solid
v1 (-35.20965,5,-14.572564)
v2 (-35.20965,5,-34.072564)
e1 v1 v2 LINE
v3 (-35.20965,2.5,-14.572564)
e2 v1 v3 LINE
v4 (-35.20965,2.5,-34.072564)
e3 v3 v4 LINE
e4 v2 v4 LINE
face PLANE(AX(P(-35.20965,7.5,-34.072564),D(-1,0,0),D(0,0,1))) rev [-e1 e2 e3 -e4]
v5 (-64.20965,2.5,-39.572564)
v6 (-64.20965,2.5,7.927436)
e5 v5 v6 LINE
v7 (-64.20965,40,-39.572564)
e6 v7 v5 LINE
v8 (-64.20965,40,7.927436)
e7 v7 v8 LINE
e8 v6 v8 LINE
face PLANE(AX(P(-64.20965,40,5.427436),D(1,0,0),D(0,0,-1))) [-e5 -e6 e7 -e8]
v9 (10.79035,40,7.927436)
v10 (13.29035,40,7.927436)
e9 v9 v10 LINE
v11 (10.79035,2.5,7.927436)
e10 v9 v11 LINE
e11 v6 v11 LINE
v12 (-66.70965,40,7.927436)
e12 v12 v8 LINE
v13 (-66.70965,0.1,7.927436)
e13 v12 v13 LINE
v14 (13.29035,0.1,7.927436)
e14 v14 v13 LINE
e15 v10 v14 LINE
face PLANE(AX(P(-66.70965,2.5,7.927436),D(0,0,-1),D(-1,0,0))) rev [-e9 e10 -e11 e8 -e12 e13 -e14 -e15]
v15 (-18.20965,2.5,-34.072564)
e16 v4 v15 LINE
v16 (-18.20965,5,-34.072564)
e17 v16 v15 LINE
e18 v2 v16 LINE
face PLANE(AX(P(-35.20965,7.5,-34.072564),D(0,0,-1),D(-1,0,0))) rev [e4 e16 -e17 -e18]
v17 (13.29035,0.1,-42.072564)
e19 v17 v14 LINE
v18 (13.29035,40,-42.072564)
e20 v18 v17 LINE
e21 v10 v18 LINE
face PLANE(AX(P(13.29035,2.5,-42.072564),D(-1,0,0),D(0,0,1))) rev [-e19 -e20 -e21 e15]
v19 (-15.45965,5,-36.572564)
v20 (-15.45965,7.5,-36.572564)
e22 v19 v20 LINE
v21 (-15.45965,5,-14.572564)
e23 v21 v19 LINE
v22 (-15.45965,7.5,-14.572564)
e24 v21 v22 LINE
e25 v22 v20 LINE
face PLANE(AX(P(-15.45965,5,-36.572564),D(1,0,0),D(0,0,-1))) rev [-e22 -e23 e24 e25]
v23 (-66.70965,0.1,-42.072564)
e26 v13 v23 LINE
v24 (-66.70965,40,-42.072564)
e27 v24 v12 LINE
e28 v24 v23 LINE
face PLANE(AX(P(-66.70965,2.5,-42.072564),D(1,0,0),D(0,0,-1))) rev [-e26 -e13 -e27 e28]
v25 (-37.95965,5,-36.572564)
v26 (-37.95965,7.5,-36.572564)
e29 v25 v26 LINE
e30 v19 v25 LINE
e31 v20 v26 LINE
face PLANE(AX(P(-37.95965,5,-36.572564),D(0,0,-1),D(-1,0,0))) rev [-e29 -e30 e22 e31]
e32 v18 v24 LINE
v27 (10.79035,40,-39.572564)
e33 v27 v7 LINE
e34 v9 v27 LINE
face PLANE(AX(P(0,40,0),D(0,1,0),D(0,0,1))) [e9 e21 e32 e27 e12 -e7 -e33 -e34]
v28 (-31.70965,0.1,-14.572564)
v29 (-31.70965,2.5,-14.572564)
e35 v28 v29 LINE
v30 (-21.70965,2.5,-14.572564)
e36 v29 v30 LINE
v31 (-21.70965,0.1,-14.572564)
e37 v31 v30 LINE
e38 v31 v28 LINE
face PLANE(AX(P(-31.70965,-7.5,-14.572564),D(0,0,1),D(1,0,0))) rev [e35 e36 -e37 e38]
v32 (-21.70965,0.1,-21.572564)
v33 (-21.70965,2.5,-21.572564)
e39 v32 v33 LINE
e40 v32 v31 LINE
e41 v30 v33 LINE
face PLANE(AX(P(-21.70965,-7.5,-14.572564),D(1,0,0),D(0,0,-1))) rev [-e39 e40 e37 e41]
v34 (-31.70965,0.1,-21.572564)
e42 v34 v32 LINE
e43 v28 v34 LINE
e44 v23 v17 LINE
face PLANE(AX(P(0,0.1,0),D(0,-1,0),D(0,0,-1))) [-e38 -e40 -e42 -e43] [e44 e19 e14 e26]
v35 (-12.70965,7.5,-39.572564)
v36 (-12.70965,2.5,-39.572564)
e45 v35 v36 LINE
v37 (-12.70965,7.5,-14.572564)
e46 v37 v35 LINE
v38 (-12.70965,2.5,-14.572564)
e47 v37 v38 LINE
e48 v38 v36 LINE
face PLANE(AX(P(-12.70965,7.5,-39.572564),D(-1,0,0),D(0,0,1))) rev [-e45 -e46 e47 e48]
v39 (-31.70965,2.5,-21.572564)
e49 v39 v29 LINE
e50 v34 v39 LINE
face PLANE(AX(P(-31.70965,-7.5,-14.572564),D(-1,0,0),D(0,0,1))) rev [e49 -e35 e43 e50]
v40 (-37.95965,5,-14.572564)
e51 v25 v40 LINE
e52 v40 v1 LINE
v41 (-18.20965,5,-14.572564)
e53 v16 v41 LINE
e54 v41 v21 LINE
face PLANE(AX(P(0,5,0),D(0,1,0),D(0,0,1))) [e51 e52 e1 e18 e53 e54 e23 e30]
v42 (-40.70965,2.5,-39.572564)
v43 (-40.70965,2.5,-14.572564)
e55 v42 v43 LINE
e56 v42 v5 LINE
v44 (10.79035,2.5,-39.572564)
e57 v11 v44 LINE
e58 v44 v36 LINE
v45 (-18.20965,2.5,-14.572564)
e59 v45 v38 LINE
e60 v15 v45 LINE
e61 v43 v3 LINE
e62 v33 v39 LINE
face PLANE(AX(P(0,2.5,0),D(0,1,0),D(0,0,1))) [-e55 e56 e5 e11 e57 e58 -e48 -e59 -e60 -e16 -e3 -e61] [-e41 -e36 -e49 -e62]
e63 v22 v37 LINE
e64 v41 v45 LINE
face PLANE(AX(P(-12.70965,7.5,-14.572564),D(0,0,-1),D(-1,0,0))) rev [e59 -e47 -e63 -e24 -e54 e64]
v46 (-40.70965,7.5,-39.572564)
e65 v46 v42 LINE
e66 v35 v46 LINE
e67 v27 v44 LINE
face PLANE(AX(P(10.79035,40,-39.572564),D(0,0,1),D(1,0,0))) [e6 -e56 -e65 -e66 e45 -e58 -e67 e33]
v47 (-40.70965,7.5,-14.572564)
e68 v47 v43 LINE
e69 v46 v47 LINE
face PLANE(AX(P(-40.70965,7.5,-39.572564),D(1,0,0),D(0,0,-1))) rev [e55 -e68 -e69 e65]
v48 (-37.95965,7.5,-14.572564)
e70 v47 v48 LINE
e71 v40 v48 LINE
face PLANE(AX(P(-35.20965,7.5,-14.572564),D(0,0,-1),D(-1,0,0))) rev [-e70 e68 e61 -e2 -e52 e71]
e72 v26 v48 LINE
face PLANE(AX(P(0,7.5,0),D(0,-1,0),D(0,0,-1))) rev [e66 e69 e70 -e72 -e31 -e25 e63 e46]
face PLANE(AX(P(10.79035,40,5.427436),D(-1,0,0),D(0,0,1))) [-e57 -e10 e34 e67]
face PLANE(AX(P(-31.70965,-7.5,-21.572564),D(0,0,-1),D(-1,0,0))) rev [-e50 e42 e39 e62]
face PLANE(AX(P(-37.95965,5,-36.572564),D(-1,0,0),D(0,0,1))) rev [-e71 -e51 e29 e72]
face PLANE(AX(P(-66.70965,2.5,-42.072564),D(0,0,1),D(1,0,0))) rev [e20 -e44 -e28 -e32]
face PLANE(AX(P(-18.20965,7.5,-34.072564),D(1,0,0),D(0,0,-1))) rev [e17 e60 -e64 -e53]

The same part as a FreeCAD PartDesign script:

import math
import FreeCAD as App
import Part
import Sketcher
Q = App.Units.Quantity


def add_polygon(sketch, points):
    """Adds a closed chain of lines whose ends are joined by coincident constraints."""
    first, n = sketch.GeometryCount, len(points)
    for a, b in zip(points, points[1:] + points[:1]):
        sketch.addGeometry(Part.LineSegment(App.Vector(*a, 0), App.Vector(*b, 0)), False)
    for i in range(n):
        sketch.addConstraint(Sketcher.Constraint("Coincident", first + i, 2, first + (i + 1) % n, 1))

doc = App.newDocument("Part")
body = doc.addObject("PartDesign::Body", "Body")

# Sketch on XZ plane
sketch1 = doc.addObject("Sketcher::SketchObject", "Sketch")
body.addObject(sketch1)
sketch1.AttachmentSupport = (doc.XZ_Plane, [""])
sketch1.MapMode = "FlatFace"
add_polygon(sketch1, [(-66.70965, -42.072564), (-66.70965, 7.927436), (13.29035, 7.927436), (13.29035, -42.072564)])  # lines 0-3
sketch1.addConstraint([
    Sketcher.Constraint("Vertical", 0),
    Sketcher.Constraint("Horizontal", 1),
    Sketcher.Constraint("Vertical", 2),
    Sketcher.Constraint("Horizontal", 3),
    Sketcher.Constraint("DistanceX", 1, 1, 1, 2, Q("80 mm")),
    Sketcher.Constraint("DistanceY", 0, 1, 0, 2, Q("50 mm")),
    Sketcher.Constraint("DistanceX", 0, 2, -1, 1, Q("66.70965 mm")),
    Sketcher.Constraint("DistanceY", -1, 1, 0, 2, Q("7.927436 mm")),
])
pad1 = doc.addObject("PartDesign::Pad", "Pad")
body.addObject(pad1)
pad1.Profile = sketch1
pad1.Length = 2.5
pad1.Reversed = True

# Sketch on XZ plane
sketch2 = doc.addObject("Sketcher::SketchObject", "Sketch001")
body.addObject(sketch2)
sketch2.AttachmentSupport = (doc.XZ_Plane, [""])
sketch2.MapMode = "FlatFace"
sketch2.AttachmentOffset = App.Placement(App.Vector(0, 0, -2.5), App.Rotation())
add_polygon(sketch2, [(-66.70965, -42.072564), (-66.70965, 7.927436), (13.29035, 7.927436), (13.29035, -42.072564)])  # lines 0-3
add_polygon(sketch2, [(10.79035, 5.427436), (-64.20965, 5.427436), (-64.20965, -39.572564), (10.79035, -39.572564)])  # lines 4-7
sketch2.addConstraint([
    Sketcher.Constraint("Vertical", 0),
    Sketcher.Constraint("Horizontal", 1),
    Sketcher.Constraint("Vertical", 2),
    Sketcher.Constraint("Horizontal", 3),
    Sketcher.Constraint("Horizontal", 4),
    Sketcher.Constraint("Vertical", 5),
    Sketcher.Constraint("Horizontal", 6),
    Sketcher.Constraint("Vertical", 7),
    Sketcher.Constraint("DistanceX", 1, 1, 1, 2, Q("80 mm")),
    Sketcher.Constraint("DistanceX", 4, 2, 4, 1, Q("75 mm")),
    Sketcher.Constraint("DistanceY", 0, 1, 0, 2, Q("50 mm")),
    Sketcher.Constraint("DistanceY", 5, 2, 5, 1, Q("45 mm")),
    Sketcher.Constraint("DistanceX", 0, 2, 4, 2, Q("2.5 mm")),
    Sketcher.Constraint("DistanceY", 4, 2, 0, 2, Q("2.5 mm")),
    Sketcher.Constraint("DistanceX", 0, 2, -1, 1, Q("66.70965 mm")),
    Sketcher.Constraint("DistanceY", -1, 1, 0, 2, Q("7.927436 mm")),
])
pad2 = doc.addObject("PartDesign::Pad", "Pad001")
body.addObject(pad2)
pad2.Profile = sketch2
pad2.Length = 37.5
pad2.Reversed = True

# Sketch on XY plane
sketch3 = doc.addObject("Sketcher::SketchObject", "Sketch002")
body.addObject(sketch3)
sketch3.AttachmentSupport = (doc.XY_Plane, [""])
sketch3.MapMode = "FlatFace"
sketch3.AttachmentOffset = App.Placement(App.Vector(0, 0, 7.927436), App.Rotation())
sketch3.addGeometry([
    Part.LineSegment(App.Vector(-33.01441, 2.5, 0), App.Vector(-20.40489, 2.5, 0)),
    Part.ArcOfCircle(Part.Circle(App.Vector(-26.70965, 15, 0), App.Vector(0, 0, 1), 14), math.radians(-63.234499), math.radians(243.234499)),
], False)
sketch3.addConstraint([
    Sketcher.Constraint("Coincident", 0, 1, 1, 2),
    Sketcher.Constraint("Coincident", 1, 1, 0, 2),
    Sketcher.Constraint("Horizontal", 0),
    Sketcher.Constraint("Radius", 1, Q("14 mm")),
    Sketcher.Constraint("DistanceY", -1, 1, 1, 3, Q("15 mm")),
    Sketcher.Constraint("DistanceY", -1, 1, 0, 1, Q("2.5 mm")),
    Sketcher.Constraint("DistanceX", 1, 3, -1, 1, Q("26.70965 mm")),
])
pocket1 = doc.addObject("PartDesign::Pocket", "Pocket")
body.addObject(pocket1)
pocket1.Profile = sketch3
pocket1.Length = 2.5

# Sketch on XZ plane
sketch4 = doc.addObject("Sketcher::SketchObject", "Sketch003")
body.addObject(sketch4)
sketch4.AttachmentSupport = (doc.XZ_Plane, [""])
sketch4.MapMode = "FlatFace"
add_polygon(sketch4, [(13.29035, -42.072564), (13.29035, 7.927436), (-66.70965, 7.927436), (-66.70965, -42.072564)])  # lines 0-3
sketch4.addConstraint([
    Sketcher.Constraint("Vertical", 0),
    Sketcher.Constraint("Horizontal", 1),
    Sketcher.Constraint("Vertical", 2),
    Sketcher.Constraint("Horizontal", 3),
    Sketcher.Constraint("DistanceX", 1, 2, 1, 1, Q("80 mm")),
    Sketcher.Constraint("DistanceY", 0, 1, 0, 2, Q("50 mm")),
    Sketcher.Constraint("DistanceX", -1, 1, 0, 2, Q("13.29035 mm")),
    Sketcher.Constraint("DistanceY", -1, 1, 0, 2, Q("7.927436 mm")),
])
pocket2 = doc.addObject("PartDesign::Pocket", "Pocket001")
body.addObject(pocket2)
pocket2.Profile = sketch4
pocket2.Length = 0.1

# Sketch on XZ plane
sketch5 = doc.addObject("Sketcher::SketchObject", "Sketch004")
body.addObject(sketch5)
sketch5.AttachmentSupport = (doc.XZ_Plane, [""])
sketch5.MapMode = "FlatFace"
sketch5.AttachmentOffset = App.Placement(App.Vector(0, 0, -2.5), App.Rotation())
add_polygon(sketch5, [(-12.70965, -39.572564), (-40.70965, -39.572564), (-40.70965, -14.572564), (-35.20965, -14.572564), (-35.20965, -34.072564), (-18.20965, -34.072564), (-18.20965, -14.572564), (-12.70965, -14.572564)])  # lines 0-7
sketch5.addConstraint([
    Sketcher.Constraint("Horizontal", 0),
    Sketcher.Constraint("Vertical", 1),
    Sketcher.Constraint("Horizontal", 2),
    Sketcher.Constraint("Vertical", 3),
    Sketcher.Constraint("Horizontal", 4),
    Sketcher.Constraint("Vertical", 5),
    Sketcher.Constraint("Horizontal", 6),
    Sketcher.Constraint("Vertical", 7),
    Sketcher.Constraint("Horizontal", 2, 2, 5, 2),
    Sketcher.Constraint("Equal", 2, 6),
    Sketcher.Constraint("DistanceX", 0, 2, 0, 1, Q("28 mm")),
    Sketcher.Constraint("DistanceX", 4, 1, 4, 2, Q("17 mm")),
    Sketcher.Constraint("DistanceY", 1, 1, 1, 2, Q("25 mm")),
    Sketcher.Constraint("DistanceY", 3, 2, 3, 1, Q("19.5 mm")),
    Sketcher.Constraint("DistanceX", 0, 2, -1, 1, Q("40.70965 mm")),
    Sketcher.Constraint("DistanceY", 0, 2, -1, 1, Q("39.572564 mm")),
])
pad3 = doc.addObject("PartDesign::Pad", "Pad002")
body.addObject(pad3)
pad3.Profile = sketch5
pad3.Length = 5
pad3.Reversed = True

# Sketch on XZ plane
sketch6 = doc.addObject("Sketcher::SketchObject", "Sketch005")
body.addObject(sketch6)
sketch6.AttachmentSupport = (doc.XZ_Plane, [""])
sketch6.MapMode = "FlatFace"
sketch6.AttachmentOffset = App.Placement(App.Vector(0, 0, -2.5), App.Rotation())
add_polygon(sketch6, [(-31.70965, -21.572564), (-31.70965, -14.572564), (-21.70965, -14.572564), (-21.70965, -21.572564)])  # lines 0-3
sketch6.addConstraint([
    Sketcher.Constraint("Vertical", 0),
    Sketcher.Constraint("Horizontal", 1),
    Sketcher.Constraint("Vertical", 2),
    Sketcher.Constraint("Horizontal", 3),
    Sketcher.Constraint("DistanceX", 1, 1, 1, 2, Q("10 mm")),
    Sketcher.Constraint("DistanceY", 0, 1, 0, 2, Q("7 mm")),
    Sketcher.Constraint("DistanceX", 0, 2, -1, 1, Q("31.70965 mm")),
    Sketcher.Constraint("DistanceY", 0, 2, -1, 1, Q("14.572564 mm")),
])
pocket3 = doc.addObject("PartDesign::Pocket", "Pocket002")
body.addObject(pocket3)
pocket3.Profile = sketch6
pocket3.Length = 10
pocket3.Reversed = True

# Sketch on XY plane
sketch7 = doc.addObject("Sketcher::SketchObject", "Sketch006")
body.addObject(sketch7)
sketch7.AttachmentSupport = (doc.XY_Plane, [""])
sketch7.MapMode = "FlatFace"
sketch7.AttachmentOffset = App.Placement(App.Vector(0, 0, 5.427436), App.Rotation())
add_polygon(sketch7, [(10.79035, 40), (10.79035, 2.5), (-64.20965, 2.5), (-64.20965, 40)])  # lines 0-3
sketch7.addConstraint([
    Sketcher.Constraint("Vertical", 0),
    Sketcher.Constraint("Horizontal", 1),
    Sketcher.Constraint("Vertical", 2),
    Sketcher.Constraint("Horizontal", 3),
    Sketcher.Constraint("DistanceX", 1, 2, 1, 1, Q("75 mm")),
    Sketcher.Constraint("DistanceY", 0, 2, 0, 1, Q("37.5 mm")),
    Sketcher.Constraint("DistanceY", -1, 1, 2, 2, Q("40 mm")),
    Sketcher.Constraint("DistanceX", -1, 1, 0, 2, Q("10.79035 mm")),
])
pocket4 = doc.addObject("PartDesign::Pocket", "Pocket003")
body.addObject(pocket4)
pocket4.Profile = sketch7
pocket4.Length = 10
pocket4.Reversed = True

# Sketch on XZ plane
sketch8 = doc.addObject("Sketcher::SketchObject", "Sketch007")
body.addObject(sketch8)
sketch8.AttachmentSupport = (doc.XZ_Plane, [""])
sketch8.MapMode = "FlatFace"
sketch8.AttachmentOffset = App.Placement(App.Vector(0, 0, -7.5), App.Rotation())
add_polygon(sketch8, [(-37.95965, -36.572564), (-37.95965, -14.572564), (-15.45965, -14.572564), (-15.45965, -36.572564)])  # lines 0-3
sketch8.addConstraint([
    Sketcher.Constraint("Vertical", 0),
    Sketcher.Constraint("Horizontal", 1),
    Sketcher.Constraint("Vertical", 2),
    Sketcher.Constraint("Horizontal", 3),
    Sketcher.Constraint("DistanceY", 0, 1, 0, 2, Q("22 mm")),
    Sketcher.Constraint("DistanceX", 1, 1, 1, 2, Q("22.5 mm")),
    Sketcher.Constraint("DistanceX", 0, 2, -1, 1, Q("37.95965 mm")),
    Sketcher.Constraint("DistanceY", 0, 2, -1, 1, Q("14.572564 mm")),
])
pocket5 = doc.addObject("PartDesign::Pocket", "Pocket004")
body.addObject(pocket5)
pocket5.Profile = sketch8
pocket5.Length = 2.5
pocket5.Reversed = True

doc.recompute()
